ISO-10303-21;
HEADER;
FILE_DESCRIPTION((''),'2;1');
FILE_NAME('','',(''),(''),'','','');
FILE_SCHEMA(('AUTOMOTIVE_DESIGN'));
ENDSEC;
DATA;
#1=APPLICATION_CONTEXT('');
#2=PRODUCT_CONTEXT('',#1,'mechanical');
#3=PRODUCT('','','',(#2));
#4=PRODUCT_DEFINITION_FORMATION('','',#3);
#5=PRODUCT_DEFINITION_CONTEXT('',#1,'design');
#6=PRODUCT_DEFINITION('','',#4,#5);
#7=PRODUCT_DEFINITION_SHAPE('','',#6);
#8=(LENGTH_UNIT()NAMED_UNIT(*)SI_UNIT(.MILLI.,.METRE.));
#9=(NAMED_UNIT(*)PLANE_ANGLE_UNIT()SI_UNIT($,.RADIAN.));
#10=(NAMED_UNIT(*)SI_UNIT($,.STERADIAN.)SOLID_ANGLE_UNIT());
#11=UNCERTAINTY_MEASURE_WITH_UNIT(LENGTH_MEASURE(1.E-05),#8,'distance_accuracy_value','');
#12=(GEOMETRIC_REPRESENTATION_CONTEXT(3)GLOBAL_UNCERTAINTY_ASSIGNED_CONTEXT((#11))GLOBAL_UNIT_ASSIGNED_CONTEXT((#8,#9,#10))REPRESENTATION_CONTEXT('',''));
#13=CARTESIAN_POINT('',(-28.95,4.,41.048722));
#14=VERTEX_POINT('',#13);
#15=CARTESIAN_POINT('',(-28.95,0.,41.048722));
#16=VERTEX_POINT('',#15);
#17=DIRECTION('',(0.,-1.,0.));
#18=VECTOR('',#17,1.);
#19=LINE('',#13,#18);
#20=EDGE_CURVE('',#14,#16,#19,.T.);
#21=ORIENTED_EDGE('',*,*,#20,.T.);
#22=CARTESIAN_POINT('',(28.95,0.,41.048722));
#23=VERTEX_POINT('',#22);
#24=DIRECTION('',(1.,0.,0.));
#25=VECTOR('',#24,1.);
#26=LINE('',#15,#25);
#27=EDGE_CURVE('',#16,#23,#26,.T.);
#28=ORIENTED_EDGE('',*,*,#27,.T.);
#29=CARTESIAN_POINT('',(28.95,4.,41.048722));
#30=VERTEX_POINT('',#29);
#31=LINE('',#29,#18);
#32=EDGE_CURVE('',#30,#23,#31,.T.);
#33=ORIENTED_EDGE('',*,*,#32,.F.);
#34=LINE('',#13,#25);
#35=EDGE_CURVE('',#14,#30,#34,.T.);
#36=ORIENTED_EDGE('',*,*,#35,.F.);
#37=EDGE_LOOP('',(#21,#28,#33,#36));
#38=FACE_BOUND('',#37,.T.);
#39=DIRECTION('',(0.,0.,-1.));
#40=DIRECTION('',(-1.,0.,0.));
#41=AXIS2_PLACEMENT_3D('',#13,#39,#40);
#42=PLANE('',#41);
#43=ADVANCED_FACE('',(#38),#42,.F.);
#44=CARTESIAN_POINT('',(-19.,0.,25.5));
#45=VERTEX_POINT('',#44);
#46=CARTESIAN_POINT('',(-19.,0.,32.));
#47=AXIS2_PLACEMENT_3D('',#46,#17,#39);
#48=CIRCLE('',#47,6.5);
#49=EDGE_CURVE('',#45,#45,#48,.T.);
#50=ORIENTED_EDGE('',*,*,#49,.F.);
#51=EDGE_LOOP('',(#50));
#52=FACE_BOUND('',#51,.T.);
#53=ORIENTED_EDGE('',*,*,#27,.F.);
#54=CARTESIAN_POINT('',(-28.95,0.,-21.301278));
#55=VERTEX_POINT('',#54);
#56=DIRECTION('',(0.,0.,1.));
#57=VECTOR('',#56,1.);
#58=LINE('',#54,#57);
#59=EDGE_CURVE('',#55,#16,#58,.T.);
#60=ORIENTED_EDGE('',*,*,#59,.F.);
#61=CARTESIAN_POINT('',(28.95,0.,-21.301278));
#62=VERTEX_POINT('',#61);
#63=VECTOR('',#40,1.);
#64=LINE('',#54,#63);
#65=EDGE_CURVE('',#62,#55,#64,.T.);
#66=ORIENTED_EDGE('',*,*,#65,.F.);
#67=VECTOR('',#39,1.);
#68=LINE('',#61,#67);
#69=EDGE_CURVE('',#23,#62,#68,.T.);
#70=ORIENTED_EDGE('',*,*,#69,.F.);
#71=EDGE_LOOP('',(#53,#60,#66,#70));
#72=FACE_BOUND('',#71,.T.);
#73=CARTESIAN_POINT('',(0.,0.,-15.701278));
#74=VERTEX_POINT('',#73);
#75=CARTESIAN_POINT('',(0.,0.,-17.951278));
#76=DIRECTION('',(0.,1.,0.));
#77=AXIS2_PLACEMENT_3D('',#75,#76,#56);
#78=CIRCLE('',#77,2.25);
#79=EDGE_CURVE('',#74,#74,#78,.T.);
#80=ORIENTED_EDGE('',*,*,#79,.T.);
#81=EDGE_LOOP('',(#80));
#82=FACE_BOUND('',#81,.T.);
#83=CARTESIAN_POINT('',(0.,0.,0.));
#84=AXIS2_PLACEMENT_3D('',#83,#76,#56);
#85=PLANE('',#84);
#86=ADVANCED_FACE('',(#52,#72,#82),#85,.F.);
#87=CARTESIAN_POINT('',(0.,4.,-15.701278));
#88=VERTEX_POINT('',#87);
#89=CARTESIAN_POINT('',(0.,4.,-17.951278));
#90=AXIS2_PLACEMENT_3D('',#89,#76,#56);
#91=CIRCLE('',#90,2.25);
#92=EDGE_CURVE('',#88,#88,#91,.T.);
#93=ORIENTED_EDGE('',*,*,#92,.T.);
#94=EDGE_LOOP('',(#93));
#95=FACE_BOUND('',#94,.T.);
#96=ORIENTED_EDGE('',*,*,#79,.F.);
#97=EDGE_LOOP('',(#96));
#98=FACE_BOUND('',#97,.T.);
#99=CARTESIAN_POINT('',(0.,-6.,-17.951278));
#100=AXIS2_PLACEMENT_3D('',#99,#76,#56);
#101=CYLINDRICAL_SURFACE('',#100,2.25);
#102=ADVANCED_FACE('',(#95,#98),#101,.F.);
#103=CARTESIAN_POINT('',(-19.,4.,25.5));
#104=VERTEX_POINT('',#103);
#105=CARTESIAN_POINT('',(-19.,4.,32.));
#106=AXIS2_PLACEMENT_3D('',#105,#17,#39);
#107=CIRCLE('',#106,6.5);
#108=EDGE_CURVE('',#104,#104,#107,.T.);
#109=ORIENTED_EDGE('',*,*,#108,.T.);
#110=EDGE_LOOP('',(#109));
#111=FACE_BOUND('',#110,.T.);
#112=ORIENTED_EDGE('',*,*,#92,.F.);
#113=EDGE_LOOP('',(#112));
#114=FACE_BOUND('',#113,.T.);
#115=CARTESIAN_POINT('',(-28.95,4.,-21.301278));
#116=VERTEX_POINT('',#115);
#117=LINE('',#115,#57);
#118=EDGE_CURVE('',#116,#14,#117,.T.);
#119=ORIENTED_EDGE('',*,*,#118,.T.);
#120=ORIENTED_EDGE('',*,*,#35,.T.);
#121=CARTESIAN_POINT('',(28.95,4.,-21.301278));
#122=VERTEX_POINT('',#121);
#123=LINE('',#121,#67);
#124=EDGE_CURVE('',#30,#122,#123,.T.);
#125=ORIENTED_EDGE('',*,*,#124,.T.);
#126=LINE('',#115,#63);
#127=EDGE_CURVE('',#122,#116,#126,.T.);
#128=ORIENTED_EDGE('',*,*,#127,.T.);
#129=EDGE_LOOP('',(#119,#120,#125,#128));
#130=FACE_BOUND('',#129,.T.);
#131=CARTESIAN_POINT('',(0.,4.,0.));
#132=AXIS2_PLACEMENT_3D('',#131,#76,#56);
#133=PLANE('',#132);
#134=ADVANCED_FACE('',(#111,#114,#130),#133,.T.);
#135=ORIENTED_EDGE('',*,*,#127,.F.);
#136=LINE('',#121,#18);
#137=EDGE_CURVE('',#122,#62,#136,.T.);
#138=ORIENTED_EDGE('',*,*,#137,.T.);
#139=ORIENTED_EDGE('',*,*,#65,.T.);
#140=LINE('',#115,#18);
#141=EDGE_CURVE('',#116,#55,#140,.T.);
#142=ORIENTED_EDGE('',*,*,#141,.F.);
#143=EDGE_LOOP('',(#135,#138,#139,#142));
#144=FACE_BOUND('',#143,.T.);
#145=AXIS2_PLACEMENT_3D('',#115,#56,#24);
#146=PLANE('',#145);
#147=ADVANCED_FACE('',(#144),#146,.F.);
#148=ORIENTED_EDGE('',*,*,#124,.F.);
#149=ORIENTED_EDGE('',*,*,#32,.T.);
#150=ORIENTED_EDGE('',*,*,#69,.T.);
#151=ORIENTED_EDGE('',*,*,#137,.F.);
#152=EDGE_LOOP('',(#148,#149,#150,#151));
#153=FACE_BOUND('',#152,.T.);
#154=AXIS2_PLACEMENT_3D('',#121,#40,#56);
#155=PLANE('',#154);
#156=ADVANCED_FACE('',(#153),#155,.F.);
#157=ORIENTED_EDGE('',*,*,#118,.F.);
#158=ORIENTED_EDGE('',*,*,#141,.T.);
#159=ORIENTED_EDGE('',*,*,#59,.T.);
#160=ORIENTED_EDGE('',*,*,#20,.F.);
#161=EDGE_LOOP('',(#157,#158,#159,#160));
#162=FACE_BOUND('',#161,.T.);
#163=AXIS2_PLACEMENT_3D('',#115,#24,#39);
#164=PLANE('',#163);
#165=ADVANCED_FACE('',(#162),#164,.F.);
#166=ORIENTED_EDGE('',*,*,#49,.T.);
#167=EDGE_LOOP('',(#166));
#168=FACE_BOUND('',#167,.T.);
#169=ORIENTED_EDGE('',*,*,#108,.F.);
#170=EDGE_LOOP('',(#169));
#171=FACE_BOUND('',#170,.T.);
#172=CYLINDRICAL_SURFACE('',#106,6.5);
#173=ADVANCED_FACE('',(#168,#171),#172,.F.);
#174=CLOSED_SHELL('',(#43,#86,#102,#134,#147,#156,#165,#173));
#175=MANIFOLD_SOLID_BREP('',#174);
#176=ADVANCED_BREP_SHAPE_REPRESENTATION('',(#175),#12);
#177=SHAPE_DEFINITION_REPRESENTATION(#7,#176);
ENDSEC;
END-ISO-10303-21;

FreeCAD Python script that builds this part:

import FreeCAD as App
import Part
import Sketcher
from FreeCAD import Vector
Q = App.Units.Quantity


def add_polygon(sketch, points):
    """Adds a closed chain of lines whose ends are joined by coincident constraints."""
    first, n = sketch.GeometryCount, len(points)
    for a, b in zip(points, points[1:] + points[:1]):
        sketch.addGeometry(Part.LineSegment(App.Vector(*a, 0), App.Vector(*b, 0)), False)
    for i in range(n):
        sketch.addConstraint(Sketcher.Constraint("Coincident", first + i, 2, first + (i + 1) % n, 1))

doc = App.newDocument("Part")
body = doc.addObject("PartDesign::Body", "Body")

# Sketch on XZ plane
sketch1 = body.newObject("Sketcher::SketchObject", "Sketch")
sketch1.AttachmentSupport = (doc.getObject("XZ_Plane"), [""])
sketch1.MapMode = "FlatFace"
add_polygon(sketch1, [(-29, -21), (-29, 41), (29, 41), (29, -21)])  # lines 0-3
sketch1.addConstraint([
    Sketcher.Constraint("Vertical", 0),
    Sketcher.Constraint("Horizontal", 1),
    Sketcher.Constraint("Vertical", 2),
    Sketcher.Constraint("Horizontal", 3),
    Sketcher.Constraint("DistanceX", 1, 1, 1, 2, Q("57.9 mm")),
    Sketcher.Constraint("DistanceY", 0, 1, 0, 2, Q("62.35 mm")),
    Sketcher.Constraint("DistanceX", 0, 2, -1, 1, Q("28.95 mm")),
    Sketcher.Constraint("DistanceY", -1, 1, 0, 2, Q("41.048722 mm")),
])
pad1 = body.newObject("PartDesign::Pad", "Pad")
pad1.Profile = sketch1
pad1.Length = 4
pad1.Reversed = True

# Sketch on XZ plane
sketch2 = body.newObject("Sketcher::SketchObject", "Sketch001")
sketch2.AttachmentSupport = (doc.getObject("XZ_Plane"), [""])
sketch2.MapMode = "FlatFace"
sketch2.addGeometry(Part.Circle(Vector(-19, 32, 0), Vector(0, 0, 1), 6), False)
sketch2.addConstraint([
    Sketcher.Constraint("Diameter", 0, Q("13 mm")),
    Sketcher.Constraint("DistanceX", 0, 3, -1, 1, Q("19 mm")),
    Sketcher.Constraint("DistanceY", -1, 1, 0, 3, Q("32 mm")),
])
pocket1 = body.newObject("PartDesign::Pocket", "Pocket")
pocket1.Profile = sketch2
pocket1.Type = "ThroughAll"

# Sketch on XZ plane
sketch3 = body.newObject("Sketcher::SketchObject", "Sketch002")
sketch3.AttachmentSupport = (doc.getObject("XZ_Plane"), [""])
sketch3.MapMode = "FlatFace"
sketch3.AttachmentOffset = App.Placement(Vector(0, 0, -4), App.Rotation())
sketch3.addGeometry(Part.Circle(Vector(0, -18, 0), Vector(0, 0, 1), 2.2), False)
sketch3.addConstraint([
    Sketcher.Constraint("PointOnObject", 0, 3, -2),
    Sketcher.Constraint("Diameter", 0, Q("4.5 mm")),
    Sketcher.Constraint("DistanceY", 0, 3, -1, 1, Q("17.951278 mm")),
])
pocket2 = body.newObject("PartDesign::Pocket", "Pocket001")
pocket2.Profile = sketch3
pocket2.Length = 10
pocket2.Reversed = True

doc.recompute()
